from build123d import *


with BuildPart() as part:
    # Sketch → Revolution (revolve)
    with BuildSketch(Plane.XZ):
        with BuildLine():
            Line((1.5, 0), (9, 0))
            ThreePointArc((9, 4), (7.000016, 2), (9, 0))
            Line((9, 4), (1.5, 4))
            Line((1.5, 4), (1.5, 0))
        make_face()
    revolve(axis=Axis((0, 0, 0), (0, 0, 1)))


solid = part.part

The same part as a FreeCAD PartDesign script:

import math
import FreeCAD as App
import Part
import Sketcher

V = App.Vector
Q = App.Units.Quantity

doc = App.newDocument("Part")
body = doc.addObject("PartDesign::Body", "Body")

# Sketch on XZ plane
sketch1 = body.newObject("Sketcher::SketchObject", "Sketch")
sketch1.AttachmentSupport = (doc.getObject("XZ_Plane"), [""])
sketch1.MapMode = "FlatFace"
sketch1.addGeometry([
    Part.LineSegment(V(1.5, 0, 0), V(9, 0, 0)),
    Part.ArcOfCircle(Part.Circle(V(9.000016, 2, 0), V(0, 0, 1), 2), math.radians(90.000458), math.radians(269.999542)),
    Part.LineSegment(V(9, 4, 0), V(1.5, 4, 0)),
    Part.LineSegment(V(1.5, 4, 0), V(1.5, 0, 0)),
], False)
sketch1.addConstraint([
    Sketcher.Constraint("Coincident", 0, 2, 1, 2),
    Sketcher.Constraint("Coincident", 1, 1, 2, 1),
    Sketcher.Constraint("Coincident", 2, 2, 3, 1),
    Sketcher.Constraint("Coincident", 3, 2, 0, 1),
    Sketcher.Constraint("Horizontal", 0),
    Sketcher.Constraint("Horizontal", 2),
    Sketcher.Constraint("Vertical", 3),
    Sketcher.Constraint("PointOnObject", 0, 2, -1),
    Sketcher.Constraint("Vertical", 0, 2, 1, 1),
    Sketcher.Constraint("Radius", 1, Q("2 mm")),
    Sketcher.Constraint("DistanceX", 0, 1, 0, 2, Q("7.5 mm")),
    Sketcher.Constraint("DistanceX", -1, 1, 0, 2, Q("9 mm")),
    Sketcher.Constraint("DistanceX", -1, 1, 1, 3, Q("9.000016 mm")),
])
revolution = body.newObject("PartDesign::Revolution", "Revolution")
revolution.Profile = sketch1
revolution.ReferenceAxis = (sketch1, ["V_Axis"])
revolution.Angle = 360

doc.recompute()
